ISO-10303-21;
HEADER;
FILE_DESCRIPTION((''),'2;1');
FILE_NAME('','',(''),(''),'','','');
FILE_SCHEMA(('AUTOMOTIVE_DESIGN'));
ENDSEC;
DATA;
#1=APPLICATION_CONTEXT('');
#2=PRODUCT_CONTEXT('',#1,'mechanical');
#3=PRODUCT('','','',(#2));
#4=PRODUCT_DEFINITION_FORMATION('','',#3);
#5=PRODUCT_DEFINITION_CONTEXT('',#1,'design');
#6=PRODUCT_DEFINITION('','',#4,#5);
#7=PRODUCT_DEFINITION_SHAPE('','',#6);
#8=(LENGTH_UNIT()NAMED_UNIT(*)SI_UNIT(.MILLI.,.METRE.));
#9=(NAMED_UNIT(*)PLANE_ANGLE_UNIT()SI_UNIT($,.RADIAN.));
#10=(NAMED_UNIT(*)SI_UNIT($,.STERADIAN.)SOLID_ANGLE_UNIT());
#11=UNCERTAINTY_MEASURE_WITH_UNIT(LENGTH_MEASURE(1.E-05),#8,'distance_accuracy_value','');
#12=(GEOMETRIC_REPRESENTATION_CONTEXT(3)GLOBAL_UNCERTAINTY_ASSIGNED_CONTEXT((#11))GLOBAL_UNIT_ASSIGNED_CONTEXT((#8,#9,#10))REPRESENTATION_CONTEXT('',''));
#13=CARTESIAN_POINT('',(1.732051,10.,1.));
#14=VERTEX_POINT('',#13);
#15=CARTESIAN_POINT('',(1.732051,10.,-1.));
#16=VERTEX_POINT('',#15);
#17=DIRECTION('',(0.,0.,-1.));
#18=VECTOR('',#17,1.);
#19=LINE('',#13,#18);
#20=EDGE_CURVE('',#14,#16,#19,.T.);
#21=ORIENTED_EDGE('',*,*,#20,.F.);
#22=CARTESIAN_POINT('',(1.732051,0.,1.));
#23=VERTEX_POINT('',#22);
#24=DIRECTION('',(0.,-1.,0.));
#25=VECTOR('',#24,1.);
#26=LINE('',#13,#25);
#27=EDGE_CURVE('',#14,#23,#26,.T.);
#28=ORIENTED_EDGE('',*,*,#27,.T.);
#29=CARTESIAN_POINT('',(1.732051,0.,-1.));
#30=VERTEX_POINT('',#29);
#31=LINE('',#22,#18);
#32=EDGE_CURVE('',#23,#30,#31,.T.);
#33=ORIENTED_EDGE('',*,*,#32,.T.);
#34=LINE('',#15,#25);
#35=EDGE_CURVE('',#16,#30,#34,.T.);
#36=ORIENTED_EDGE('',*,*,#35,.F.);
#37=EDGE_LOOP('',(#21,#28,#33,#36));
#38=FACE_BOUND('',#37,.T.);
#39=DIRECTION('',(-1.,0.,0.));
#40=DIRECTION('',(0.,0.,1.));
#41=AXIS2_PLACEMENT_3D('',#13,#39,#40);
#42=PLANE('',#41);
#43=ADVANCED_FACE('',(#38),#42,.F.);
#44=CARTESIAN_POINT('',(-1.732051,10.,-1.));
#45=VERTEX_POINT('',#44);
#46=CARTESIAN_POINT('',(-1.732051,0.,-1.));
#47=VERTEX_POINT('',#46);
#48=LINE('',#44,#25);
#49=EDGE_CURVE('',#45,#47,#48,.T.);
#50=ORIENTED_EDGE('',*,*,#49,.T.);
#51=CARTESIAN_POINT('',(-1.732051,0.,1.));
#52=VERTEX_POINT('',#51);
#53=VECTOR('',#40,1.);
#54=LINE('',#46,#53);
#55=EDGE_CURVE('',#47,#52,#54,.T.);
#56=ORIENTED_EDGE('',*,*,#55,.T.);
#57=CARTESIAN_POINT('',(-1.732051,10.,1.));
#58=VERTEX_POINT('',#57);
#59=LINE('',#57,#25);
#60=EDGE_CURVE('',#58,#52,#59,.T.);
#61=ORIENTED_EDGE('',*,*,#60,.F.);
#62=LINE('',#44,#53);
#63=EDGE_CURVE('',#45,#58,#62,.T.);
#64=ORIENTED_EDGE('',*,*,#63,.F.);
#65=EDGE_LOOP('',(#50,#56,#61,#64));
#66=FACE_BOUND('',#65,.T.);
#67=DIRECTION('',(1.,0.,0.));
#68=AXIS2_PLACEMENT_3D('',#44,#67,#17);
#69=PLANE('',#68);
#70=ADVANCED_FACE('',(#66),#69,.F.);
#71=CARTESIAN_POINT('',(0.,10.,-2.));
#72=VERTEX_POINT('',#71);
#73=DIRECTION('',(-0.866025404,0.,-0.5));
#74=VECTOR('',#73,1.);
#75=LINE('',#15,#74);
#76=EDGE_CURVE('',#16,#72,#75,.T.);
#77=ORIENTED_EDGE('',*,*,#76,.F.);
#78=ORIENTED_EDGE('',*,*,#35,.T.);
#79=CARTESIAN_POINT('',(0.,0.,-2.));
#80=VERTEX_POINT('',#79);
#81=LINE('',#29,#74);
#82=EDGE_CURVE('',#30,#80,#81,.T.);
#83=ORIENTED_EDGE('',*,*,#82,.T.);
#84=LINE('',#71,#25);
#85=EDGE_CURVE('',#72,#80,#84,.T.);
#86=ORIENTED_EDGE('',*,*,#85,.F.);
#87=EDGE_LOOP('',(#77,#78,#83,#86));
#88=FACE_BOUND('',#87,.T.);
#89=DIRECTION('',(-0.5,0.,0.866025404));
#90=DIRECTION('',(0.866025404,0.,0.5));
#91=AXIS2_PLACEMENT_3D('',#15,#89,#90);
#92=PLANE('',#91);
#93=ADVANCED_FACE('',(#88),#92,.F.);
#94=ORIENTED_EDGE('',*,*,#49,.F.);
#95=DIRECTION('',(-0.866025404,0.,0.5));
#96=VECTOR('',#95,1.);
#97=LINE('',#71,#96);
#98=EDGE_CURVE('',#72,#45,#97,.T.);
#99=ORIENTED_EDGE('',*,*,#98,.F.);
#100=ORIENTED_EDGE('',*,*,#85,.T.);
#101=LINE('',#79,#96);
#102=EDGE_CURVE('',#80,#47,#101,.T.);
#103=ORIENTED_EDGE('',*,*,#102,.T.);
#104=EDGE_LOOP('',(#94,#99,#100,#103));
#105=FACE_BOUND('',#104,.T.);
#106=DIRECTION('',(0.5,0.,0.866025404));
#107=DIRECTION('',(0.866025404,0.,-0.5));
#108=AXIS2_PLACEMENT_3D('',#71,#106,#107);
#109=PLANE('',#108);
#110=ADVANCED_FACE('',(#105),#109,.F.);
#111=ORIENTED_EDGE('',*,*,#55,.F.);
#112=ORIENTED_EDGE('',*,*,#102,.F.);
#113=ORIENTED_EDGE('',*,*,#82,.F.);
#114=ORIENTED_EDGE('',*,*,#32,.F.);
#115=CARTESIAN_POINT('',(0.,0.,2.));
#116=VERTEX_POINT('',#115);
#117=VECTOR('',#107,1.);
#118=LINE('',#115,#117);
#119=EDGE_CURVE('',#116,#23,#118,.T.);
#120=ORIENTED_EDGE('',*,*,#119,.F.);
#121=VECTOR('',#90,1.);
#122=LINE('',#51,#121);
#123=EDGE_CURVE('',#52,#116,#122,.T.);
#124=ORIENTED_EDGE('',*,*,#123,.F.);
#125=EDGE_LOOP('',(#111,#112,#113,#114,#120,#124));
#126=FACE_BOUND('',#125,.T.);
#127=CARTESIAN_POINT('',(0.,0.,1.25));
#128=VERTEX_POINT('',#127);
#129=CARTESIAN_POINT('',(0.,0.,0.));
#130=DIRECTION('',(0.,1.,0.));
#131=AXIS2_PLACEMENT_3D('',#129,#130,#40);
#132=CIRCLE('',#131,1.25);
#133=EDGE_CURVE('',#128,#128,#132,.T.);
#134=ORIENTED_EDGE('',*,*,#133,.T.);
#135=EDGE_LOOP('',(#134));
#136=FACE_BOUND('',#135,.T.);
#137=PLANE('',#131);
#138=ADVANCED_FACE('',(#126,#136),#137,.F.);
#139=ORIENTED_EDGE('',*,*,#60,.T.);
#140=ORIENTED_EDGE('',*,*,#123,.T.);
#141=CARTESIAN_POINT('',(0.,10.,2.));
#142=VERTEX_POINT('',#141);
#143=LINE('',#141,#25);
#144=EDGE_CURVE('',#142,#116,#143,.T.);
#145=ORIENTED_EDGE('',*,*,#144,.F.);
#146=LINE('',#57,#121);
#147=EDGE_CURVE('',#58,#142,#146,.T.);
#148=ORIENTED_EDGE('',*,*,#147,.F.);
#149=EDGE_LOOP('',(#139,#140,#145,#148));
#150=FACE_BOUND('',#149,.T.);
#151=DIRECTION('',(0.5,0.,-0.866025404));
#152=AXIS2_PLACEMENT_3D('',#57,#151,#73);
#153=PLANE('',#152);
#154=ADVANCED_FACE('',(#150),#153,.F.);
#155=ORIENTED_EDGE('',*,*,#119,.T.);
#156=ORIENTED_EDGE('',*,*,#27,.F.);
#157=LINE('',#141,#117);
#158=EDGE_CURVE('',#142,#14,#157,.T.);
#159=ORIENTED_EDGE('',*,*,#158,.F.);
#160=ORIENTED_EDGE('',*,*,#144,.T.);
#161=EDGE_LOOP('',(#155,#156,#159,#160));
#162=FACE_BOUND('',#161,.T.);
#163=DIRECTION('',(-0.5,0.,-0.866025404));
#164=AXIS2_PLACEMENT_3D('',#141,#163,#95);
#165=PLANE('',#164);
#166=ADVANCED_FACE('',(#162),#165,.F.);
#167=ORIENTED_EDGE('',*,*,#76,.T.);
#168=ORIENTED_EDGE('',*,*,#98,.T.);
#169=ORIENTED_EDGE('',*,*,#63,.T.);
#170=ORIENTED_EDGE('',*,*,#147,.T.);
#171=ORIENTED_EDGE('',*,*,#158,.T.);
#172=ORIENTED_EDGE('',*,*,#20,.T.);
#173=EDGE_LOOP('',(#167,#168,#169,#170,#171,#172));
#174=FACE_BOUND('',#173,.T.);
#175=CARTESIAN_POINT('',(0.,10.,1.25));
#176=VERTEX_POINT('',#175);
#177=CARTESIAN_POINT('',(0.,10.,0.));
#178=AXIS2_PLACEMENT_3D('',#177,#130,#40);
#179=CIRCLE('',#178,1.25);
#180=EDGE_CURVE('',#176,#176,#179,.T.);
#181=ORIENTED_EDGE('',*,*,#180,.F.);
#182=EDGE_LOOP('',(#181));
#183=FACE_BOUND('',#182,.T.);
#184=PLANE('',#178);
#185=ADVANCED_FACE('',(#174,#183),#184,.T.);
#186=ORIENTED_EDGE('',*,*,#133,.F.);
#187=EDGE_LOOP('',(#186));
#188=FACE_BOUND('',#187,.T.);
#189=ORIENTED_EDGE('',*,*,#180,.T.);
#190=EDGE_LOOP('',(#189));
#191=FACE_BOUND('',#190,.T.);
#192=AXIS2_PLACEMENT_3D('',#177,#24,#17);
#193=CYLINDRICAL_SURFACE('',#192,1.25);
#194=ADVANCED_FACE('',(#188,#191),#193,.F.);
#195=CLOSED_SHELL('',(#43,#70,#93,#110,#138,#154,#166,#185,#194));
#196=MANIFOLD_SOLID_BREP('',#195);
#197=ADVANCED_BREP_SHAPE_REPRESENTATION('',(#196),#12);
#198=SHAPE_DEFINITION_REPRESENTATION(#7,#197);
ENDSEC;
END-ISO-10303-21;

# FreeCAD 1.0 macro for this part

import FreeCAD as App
import Part
import Sketcher
Q = App.Units.Quantity

doc = App.newDocument("Part")
body = doc.addObject("PartDesign::Body", "Body")

# Sketch on XZ plane
sketch1 = body.newObject("Sketcher::SketchObject", "Sketch")
sketch1.AttachmentSupport = (doc.getObject("XZ_Plane"), [""])
sketch1.MapMode = "FlatFace"
sketch1.addGeometry([
    Part.LineSegment(App.Vector(0, -2, 0), App.Vector(-1.732051, -1, 0)),  # 0
    Part.LineSegment(App.Vector(-1.732051, -1, 0), App.Vector(-1.732051, 1, 0)),  # 1
    Part.LineSegment(App.Vector(-1.732051, 1, 0), App.Vector(0, 2, 0)),  # 2
    Part.LineSegment(App.Vector(0, 2, 0), App.Vector(1.732051, 1, 0)),  # 3
    Part.LineSegment(App.Vector(1.732051, 1, 0), App.Vector(1.732051, -1, 0)),  # 4
    Part.LineSegment(App.Vector(1.732051, -1, 0), App.Vector(0, -2, 0)),  # 5
    Part.Circle(App.Vector(0, 0, 0), App.Vector(0, 0, 1), 1.25),  # 6
], False)
sketch1.addConstraint([
    Sketcher.Constraint("Coincident", 0, 2, 1, 1),
    Sketcher.Constraint("Coincident", 1, 2, 2, 1),
    Sketcher.Constraint("Coincident", 2, 2, 3, 1),
    Sketcher.Constraint("Coincident", 3, 2, 4, 1),
    Sketcher.Constraint("Coincident", 4, 2, 5, 1),
    Sketcher.Constraint("Coincident", 5, 2, 0, 1),
    Sketcher.Constraint("Vertical", 1),
    Sketcher.Constraint("Vertical", 4),
    Sketcher.Constraint("Coincident", 6, 3, -1, 1),
    Sketcher.Constraint("Symmetric", 0, 2, 3, 2, -1, 1),
    Sketcher.Constraint("Symmetric", 2, 2, 5, 2, -1, 1),
    Sketcher.Constraint("PointOnObject", 2, 2, -2),
    Sketcher.Constraint("Parallel", 2, 5),
    Sketcher.Constraint("Horizontal", 1, 2, 3, 2),
    Sketcher.Constraint("Diameter", 6, Q("2.5 mm")),
    Sketcher.Constraint("DistanceY", 1, 1, 1, 2, Q("2 mm")),
    Sketcher.Constraint("Angle", 0, Q("150 deg")),
    Sketcher.Constraint("Distance", 0, Q("2 mm")),
])
pad1 = body.newObject("PartDesign::Pad", "Pad")
pad1.Profile = sketch1
pad1.Length = 10
pad1.Reversed = True

doc.recompute()
